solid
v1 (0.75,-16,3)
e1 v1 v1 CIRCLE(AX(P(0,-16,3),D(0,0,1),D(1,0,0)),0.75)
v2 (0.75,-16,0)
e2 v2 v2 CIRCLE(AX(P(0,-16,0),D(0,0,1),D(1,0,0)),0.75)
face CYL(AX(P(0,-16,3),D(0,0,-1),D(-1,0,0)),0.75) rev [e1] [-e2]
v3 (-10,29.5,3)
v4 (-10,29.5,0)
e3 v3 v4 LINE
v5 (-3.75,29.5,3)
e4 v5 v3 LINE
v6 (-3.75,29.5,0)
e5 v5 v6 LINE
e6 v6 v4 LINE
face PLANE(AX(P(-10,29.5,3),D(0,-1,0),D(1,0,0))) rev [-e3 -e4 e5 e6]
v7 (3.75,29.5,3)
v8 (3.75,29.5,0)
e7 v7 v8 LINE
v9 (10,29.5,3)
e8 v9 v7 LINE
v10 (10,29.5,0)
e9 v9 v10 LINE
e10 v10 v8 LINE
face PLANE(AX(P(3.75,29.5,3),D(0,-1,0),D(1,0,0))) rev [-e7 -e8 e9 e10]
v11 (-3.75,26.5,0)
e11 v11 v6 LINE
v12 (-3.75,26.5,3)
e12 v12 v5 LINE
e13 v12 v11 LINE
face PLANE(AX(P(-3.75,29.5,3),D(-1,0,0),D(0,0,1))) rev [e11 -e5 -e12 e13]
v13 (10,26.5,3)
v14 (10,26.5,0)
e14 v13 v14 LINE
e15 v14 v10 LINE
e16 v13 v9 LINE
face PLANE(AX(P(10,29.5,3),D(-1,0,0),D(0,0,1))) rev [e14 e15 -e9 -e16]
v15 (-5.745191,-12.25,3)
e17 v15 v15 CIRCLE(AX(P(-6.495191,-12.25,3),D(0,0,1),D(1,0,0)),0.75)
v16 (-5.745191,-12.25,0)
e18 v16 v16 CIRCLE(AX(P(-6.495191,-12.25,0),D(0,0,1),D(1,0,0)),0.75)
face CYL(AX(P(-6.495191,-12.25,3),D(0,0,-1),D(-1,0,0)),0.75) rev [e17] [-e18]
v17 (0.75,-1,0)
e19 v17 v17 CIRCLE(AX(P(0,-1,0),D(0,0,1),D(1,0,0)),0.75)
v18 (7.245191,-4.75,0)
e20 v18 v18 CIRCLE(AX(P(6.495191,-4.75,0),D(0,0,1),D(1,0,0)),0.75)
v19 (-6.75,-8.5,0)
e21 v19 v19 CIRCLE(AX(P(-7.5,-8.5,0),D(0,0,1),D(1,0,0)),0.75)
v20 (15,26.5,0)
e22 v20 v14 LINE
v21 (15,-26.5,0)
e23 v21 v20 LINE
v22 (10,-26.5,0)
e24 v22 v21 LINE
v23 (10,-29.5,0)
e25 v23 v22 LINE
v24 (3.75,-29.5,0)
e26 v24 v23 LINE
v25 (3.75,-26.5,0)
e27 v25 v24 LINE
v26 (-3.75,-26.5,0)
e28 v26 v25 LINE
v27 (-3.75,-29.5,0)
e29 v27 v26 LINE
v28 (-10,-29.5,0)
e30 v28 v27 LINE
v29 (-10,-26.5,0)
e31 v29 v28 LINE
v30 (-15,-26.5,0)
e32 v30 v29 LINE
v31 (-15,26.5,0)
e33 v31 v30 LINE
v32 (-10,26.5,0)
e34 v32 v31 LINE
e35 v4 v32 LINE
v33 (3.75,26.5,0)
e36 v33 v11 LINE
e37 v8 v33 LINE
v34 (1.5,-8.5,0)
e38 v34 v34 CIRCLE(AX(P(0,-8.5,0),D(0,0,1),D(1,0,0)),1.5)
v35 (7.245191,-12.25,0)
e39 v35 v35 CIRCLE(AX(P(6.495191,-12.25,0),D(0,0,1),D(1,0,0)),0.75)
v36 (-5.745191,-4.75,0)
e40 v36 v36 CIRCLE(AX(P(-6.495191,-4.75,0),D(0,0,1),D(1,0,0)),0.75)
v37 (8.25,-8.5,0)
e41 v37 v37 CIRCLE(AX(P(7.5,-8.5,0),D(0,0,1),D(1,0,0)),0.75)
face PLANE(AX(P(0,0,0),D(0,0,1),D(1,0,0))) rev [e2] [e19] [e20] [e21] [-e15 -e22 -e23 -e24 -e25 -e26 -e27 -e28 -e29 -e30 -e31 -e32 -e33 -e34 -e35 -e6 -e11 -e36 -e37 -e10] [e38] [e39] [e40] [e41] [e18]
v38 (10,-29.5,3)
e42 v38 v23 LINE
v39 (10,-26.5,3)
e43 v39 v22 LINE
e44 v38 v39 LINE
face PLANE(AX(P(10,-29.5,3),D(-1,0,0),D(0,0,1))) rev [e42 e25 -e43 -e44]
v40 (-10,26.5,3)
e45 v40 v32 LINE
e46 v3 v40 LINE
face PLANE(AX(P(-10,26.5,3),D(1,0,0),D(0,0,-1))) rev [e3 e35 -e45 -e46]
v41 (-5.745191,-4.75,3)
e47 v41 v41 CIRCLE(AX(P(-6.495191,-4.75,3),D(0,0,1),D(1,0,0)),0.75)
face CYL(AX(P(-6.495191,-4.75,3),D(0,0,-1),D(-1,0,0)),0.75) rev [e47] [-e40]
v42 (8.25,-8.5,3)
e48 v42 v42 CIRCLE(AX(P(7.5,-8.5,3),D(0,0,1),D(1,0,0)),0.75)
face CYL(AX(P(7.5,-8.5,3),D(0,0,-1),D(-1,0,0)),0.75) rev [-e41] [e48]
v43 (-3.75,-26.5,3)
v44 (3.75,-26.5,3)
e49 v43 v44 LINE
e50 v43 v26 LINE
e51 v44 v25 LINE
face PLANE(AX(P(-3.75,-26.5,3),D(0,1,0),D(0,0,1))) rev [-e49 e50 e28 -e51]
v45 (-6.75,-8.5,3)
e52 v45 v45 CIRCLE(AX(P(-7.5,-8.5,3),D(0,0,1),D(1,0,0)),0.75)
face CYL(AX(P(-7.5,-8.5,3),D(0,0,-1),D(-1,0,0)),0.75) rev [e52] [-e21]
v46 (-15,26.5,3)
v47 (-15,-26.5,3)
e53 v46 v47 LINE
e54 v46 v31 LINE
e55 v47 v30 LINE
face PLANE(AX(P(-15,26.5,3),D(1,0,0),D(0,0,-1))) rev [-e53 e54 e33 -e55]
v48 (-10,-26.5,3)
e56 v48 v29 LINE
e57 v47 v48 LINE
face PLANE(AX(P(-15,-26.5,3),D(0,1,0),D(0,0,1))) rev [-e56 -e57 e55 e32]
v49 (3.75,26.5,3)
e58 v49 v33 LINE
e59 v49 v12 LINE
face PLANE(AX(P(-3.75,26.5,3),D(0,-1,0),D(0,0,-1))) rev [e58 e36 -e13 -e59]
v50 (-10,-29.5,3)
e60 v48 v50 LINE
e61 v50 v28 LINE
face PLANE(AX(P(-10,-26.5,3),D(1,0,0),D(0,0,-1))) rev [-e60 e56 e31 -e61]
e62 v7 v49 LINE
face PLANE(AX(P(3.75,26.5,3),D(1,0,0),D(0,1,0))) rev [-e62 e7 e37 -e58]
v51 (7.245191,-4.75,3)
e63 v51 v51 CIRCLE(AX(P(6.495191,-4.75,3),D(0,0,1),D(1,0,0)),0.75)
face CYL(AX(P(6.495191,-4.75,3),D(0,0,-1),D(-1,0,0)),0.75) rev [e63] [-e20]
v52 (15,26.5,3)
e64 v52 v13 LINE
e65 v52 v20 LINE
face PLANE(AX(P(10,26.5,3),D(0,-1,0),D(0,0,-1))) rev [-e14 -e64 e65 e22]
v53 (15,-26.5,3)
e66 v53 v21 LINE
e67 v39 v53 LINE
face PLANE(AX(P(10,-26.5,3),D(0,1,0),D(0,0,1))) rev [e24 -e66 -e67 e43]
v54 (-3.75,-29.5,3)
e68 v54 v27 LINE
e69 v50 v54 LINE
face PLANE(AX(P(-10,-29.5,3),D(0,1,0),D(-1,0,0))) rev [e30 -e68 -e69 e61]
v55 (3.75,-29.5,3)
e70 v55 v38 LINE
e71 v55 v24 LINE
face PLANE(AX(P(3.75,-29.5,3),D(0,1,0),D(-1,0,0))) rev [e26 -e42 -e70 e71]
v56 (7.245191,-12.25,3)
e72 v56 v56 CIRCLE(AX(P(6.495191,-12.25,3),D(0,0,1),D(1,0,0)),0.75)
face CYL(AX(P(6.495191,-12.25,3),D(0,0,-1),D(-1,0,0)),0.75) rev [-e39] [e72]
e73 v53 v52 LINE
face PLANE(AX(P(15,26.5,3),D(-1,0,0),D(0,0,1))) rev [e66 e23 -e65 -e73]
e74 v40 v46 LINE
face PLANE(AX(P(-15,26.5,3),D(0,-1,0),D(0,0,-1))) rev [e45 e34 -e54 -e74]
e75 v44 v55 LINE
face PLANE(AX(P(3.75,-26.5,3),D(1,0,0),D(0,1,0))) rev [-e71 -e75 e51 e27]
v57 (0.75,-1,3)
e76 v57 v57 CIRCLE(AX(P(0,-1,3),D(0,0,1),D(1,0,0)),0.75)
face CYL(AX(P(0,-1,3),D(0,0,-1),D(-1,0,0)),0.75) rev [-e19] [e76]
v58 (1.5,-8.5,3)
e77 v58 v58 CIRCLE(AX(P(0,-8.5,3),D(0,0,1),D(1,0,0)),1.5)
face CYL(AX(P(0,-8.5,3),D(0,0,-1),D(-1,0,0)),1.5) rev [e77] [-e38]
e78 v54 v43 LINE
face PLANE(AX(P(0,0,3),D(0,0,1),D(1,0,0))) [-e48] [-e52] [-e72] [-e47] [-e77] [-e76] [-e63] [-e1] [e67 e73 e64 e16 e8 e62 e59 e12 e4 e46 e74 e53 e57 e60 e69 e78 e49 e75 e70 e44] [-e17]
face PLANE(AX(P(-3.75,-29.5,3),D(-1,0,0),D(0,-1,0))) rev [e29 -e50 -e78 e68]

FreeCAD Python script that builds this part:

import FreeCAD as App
import Part
import Sketcher
Q = App.Units.Quantity


def add_polygon(sketch, points):
    """Adds a closed chain of lines whose ends are joined by coincident constraints."""
    first, n = sketch.GeometryCount, len(points)
    for a, b in zip(points, points[1:] + points[:1]):
        sketch.addGeometry(Part.LineSegment(App.Vector(*a, 0), App.Vector(*b, 0)), False)
    for i in range(n):
        sketch.addConstraint(Sketcher.Constraint("Coincident", first + i, 2, first + (i + 1) % n, 1))

doc = App.newDocument("Part")
body = doc.addObject("PartDesign::Body", "Body")

# Sketch on XY plane
sketch1 = body.newObject("Sketcher::SketchObject", "Sketch")
sketch1.AttachmentSupport = (doc.getObject("XY_Plane"), [""])
sketch1.MapMode = "FlatFace"
add_polygon(sketch1, [(-10, 26.5), (-15, 26.5), (-15, -26.5), (-10, -26.5), (-10, -29.5), (-3.8, -29.5), (-3.8, -26.5), (3.8, -26.5), (3.8, -29.5), (10, -29.5), (10, -26.5), (15, -26.5), (15, 26.5), (10, 26.5), (10, 29.5), (3.8, 29.5), (3.8, 26.5), (-3.8, 26.5), (-3.8, 29.5), (-10, 29.5)])  # lines 0-19
sketch1.addGeometry(Part.Circle(App.Vector(6.5, -12.2, 0), App.Vector(0, 0, 1), 0.8), False)  # 20
sketch1.addGeometry(Part.Circle(App.Vector(0, -16, 0), App.Vector(0, 0, 1), 0.8), False)  # 21
sketch1.addGeometry(Part.Circle(App.Vector(-6.5, -12.2, 0), App.Vector(0, 0, 1), 0.8), False)  # 22
sketch1.addGeometry(Part.Circle(App.Vector(7.5, -8.5, 0), App.Vector(0, 0, 1), 0.8), False)  # 23
sketch1.addGeometry(Part.Circle(App.Vector(6.5, -4.8, 0), App.Vector(0, 0, 1), 0.8), False)  # 24
sketch1.addGeometry(Part.Circle(App.Vector(0, -8.5, 0), App.Vector(0, 0, 1), 1.5), False)  # 25
sketch1.addGeometry(Part.Circle(App.Vector(-7.5, -8.5, 0), App.Vector(0, 0, 1), 0.8), False)  # 26
sketch1.addGeometry(Part.Circle(App.Vector(-6.5, -4.8, 0), App.Vector(0, 0, 1), 0.8), False)  # 27
sketch1.addGeometry(Part.Circle(App.Vector(0, -1, 0), App.Vector(0, 0, 1), 0.8), False)  # 28
sketch1.addConstraint([
    Sketcher.Constraint("Horizontal", 0),
    Sketcher.Constraint("Vertical", 1),
    Sketcher.Constraint("Horizontal", 2),
    Sketcher.Constraint("Vertical", 3),
    Sketcher.Constraint("Horizontal", 4),
    Sketcher.Constraint("Vertical", 5),
    Sketcher.Constraint("Horizontal", 6),
    Sketcher.Constraint("Vertical", 7),
    Sketcher.Constraint("Horizontal", 8),
    Sketcher.Constraint("Vertical", 9),
    Sketcher.Constraint("Horizontal", 10),
    Sketcher.Constraint("Vertical", 11),
    Sketcher.Constraint("Horizontal", 12),
    Sketcher.Constraint("Vertical", 13),
    Sketcher.Constraint("Horizontal", 14),
    Sketcher.Constraint("Vertical", 15),
    Sketcher.Constraint("Horizontal", 16),
    Sketcher.Constraint("Vertical", 17),
    Sketcher.Constraint("Horizontal", 18),
    Sketcher.Constraint("Vertical", 19),
    Sketcher.Constraint("Equal", 20, 21),
    Sketcher.Constraint("Equal", 21, 22),
    Sketcher.Constraint("Equal", 22, 23),
    Sketcher.Constraint("Equal", 23, 24),
    Sketcher.Constraint("Equal", 24, 26),
    Sketcher.Constraint("Equal", 26, 27),
    Sketcher.Constraint("Equal", 27, 28),
    Sketcher.Constraint("Symmetric", 0, 2, 10, 2, -1, 1),
    Sketcher.Constraint("Symmetric", 2, 2, 12, 2, -1, 1),
    Sketcher.Constraint("Symmetric", 4, 2, 14, 2, -1, 1),
    Sketcher.Constraint("Symmetric", 6, 2, 16, 2, -1, 1),
    Sketcher.Constraint("Symmetric", 8, 2, 18, 2, -1, 1),
    Sketcher.Constraint("Symmetric", 20, 3, 22, 3, -2),
    Sketcher.Constraint("Symmetric", 23, 3, 26, 3, -2),
    Sketcher.Constraint("Symmetric", 24, 3, 27, 3, -2),
    Sketcher.Constraint("Symmetric", 4, 2, 7, 2, -2),
    Sketcher.Constraint("Symmetric", 2, 2, 9, 2, -2),
    Sketcher.Constraint("PointOnObject", 21, 3, -2),
    Sketcher.Constraint("PointOnObject", 25, 3, -2),
    Sketcher.Constraint("PointOnObject", 28, 3, -2),
    Sketcher.Constraint("Horizontal", 23, 3, 25, 3),
    Sketcher.Constraint("Horizontal", 2, 2, 5, 2),
    Sketcher.Constraint("Vertical", 20, 3, 24, 3),
    Sketcher.Constraint("Diameter", 25, Q("3 mm")),
    Sketcher.Constraint("Diameter", 20, Q("1.5 mm")),
    Sketcher.Constraint("DistanceX", 0, 2, 0, 1, Q("5 mm")),
    Sketcher.Constraint("DistanceY", 1, 2, 1, 1, Q("53 mm")),
    Sketcher.Constraint("DistanceY", 3, 2, 3, 1, Q("3 mm")),
    Sketcher.Constraint("DistanceX", 6, 1, 6, 2, Q("7.5 mm")),
    Sketcher.Constraint("DistanceY", 21, 3, -1, 1, Q("16 mm")),
    Sketcher.Constraint("DistanceY", 28, 3, -1, 1, Q("1 mm")),
    Sketcher.Constraint("DistanceX", 0, 2, -1, 1, Q("15 mm")),
    Sketcher.Constraint("DistanceY", 26, 3, 0, 2, Q("35 mm")),
    Sketcher.Constraint("DistanceX", -1, 1, 23, 3, Q("7.5 mm")),
    Sketcher.Constraint("DistanceY", 20, 3, 24, 3, Q("7.5 mm")),
    Sketcher.Constraint("DistanceY", 20, 3, -1, 1, Q("12.25 mm")),
    Sketcher.Constraint("DistanceX", -1, 1, 20, 3, Q("6.495191 mm")),
])
pad1 = body.newObject("PartDesign::Pad", "Pad")
pad1.Profile = sketch1
pad1.Length = 3

doc.recompute()
